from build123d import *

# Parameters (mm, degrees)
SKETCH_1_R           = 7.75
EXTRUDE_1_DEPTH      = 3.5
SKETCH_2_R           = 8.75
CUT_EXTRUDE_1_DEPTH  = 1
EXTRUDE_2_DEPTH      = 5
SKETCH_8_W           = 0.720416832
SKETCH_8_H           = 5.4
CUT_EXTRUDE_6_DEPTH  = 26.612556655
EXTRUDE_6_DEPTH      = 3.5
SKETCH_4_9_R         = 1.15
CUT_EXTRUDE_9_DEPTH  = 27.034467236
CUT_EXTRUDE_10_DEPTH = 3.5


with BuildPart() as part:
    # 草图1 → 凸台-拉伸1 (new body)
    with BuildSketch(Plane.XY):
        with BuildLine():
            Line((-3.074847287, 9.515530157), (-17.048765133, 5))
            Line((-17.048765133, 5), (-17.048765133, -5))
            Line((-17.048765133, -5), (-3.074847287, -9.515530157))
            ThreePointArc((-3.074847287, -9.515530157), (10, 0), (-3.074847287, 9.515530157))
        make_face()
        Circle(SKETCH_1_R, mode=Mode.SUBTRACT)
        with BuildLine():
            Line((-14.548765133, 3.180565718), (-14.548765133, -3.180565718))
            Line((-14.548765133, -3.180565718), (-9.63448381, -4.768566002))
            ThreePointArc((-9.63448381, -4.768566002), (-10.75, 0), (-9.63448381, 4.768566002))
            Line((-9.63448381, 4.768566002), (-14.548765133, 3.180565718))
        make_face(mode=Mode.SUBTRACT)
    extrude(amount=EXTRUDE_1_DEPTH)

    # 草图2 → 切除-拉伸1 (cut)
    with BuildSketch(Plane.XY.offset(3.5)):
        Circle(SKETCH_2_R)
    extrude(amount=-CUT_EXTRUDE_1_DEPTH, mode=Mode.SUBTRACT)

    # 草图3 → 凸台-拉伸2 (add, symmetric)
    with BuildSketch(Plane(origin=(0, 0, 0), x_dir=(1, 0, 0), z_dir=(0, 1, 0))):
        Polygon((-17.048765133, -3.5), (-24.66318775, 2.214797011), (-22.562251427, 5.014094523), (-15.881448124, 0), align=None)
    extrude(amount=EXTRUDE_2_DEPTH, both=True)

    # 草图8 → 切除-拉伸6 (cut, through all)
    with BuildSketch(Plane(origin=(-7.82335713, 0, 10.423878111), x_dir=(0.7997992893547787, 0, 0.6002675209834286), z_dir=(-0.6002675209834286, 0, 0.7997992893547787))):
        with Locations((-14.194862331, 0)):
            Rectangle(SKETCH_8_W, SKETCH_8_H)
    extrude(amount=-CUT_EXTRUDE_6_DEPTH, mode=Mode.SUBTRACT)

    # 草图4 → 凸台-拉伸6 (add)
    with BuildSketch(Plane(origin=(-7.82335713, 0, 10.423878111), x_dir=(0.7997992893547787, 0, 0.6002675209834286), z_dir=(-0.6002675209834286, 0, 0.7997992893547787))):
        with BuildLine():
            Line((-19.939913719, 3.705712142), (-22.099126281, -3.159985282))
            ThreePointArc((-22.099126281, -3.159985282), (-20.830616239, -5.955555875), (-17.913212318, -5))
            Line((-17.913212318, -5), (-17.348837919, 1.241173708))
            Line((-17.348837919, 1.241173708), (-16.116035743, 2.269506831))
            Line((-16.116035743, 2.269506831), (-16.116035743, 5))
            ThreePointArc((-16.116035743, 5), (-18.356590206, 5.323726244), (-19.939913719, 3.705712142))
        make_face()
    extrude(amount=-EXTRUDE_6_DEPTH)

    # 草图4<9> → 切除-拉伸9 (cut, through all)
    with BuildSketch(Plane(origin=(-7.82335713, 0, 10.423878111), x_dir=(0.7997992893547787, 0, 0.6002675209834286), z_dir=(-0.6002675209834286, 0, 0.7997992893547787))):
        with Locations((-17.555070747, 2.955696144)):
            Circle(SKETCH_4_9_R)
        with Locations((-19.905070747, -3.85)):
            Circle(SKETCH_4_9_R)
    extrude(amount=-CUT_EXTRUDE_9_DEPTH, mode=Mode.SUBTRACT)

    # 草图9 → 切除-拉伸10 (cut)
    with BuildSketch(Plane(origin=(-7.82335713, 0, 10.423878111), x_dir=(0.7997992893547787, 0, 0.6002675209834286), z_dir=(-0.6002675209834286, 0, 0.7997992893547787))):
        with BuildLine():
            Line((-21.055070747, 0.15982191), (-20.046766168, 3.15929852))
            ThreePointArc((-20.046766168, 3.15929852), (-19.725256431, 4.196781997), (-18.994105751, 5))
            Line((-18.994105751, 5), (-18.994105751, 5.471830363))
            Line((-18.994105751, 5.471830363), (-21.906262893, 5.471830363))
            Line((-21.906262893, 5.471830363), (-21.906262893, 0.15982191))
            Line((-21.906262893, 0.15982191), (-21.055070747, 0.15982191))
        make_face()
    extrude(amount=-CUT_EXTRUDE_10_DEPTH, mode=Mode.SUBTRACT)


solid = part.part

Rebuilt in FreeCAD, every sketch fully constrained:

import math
import FreeCAD as App
import Part
import Sketcher
from FreeCAD import Vector
Q = App.Units.Quantity


def add_polygon(sketch, points):
    """Adds a closed chain of lines whose ends are joined by coincident constraints."""
    first, n = sketch.GeometryCount, len(points)
    for a, b in zip(points, points[1:] + points[:1]):
        sketch.addGeometry(Part.LineSegment(App.Vector(*a, 0), App.Vector(*b, 0)), False)
    for i in range(n):
        sketch.addConstraint(Sketcher.Constraint("Coincident", first + i, 2, first + (i + 1) % n, 1))

doc = App.newDocument("Part")
params = doc.addObject("Spreadsheet::Sheet", "Params")
for row, (alias, value) in enumerate([
    ("sketch1_radius", "10 mm"),
    ("sketch1_diameter", "15.5 mm"),
    ("sketch1_height", "10 mm"),
    ("sketch1_radius2", "10.75 mm"),
    ("pad1_length", "3.5 mm"),
    ("sketch2_diameter", "17.5 mm"),
    ("pocket1_length", "1 mm"),
    ("sketch3_length", "3.5 mm"),
    ("pad2_length", "10 mm"),
    ("sketch4_height", "5.4 mm"),
    ("sketch5_radius", "2.3 mm"),
    ("sketch5_radius2", "2.5 mm"),
    ("pad3_length", "3.5 mm"),
    ("sketch6_diameter", "2.3 mm"),
    ("sketch7_radius", "2.5 mm"),
    ("pocket4_length", "3.5 mm"),
], start=1):
    params.set(f"A{row}", alias)
    params.set(f"B{row}", "=" + value)
    params.setAlias(f"B{row}", alias)

body = doc.addObject("PartDesign::Body", "Body")

sketch1 = body.newObject("Sketcher::SketchObject", "Sketch")
sketch1.AttachmentSupport = (doc.getObject("XY_Plane"), [""])
sketch1.MapMode = "FlatFace"
sketch1.addGeometry([
    Part.LineSegment(Vector(-3, 10, 0), Vector(-17, 5, 0)),
    Part.LineSegment(Vector(-17, 5, 0), Vector(-17, -5, 0)),
    Part.LineSegment(Vector(-17, -5, 0), Vector(-3, -10, 0)),
    Part.ArcOfCircle(Part.Circle(Vector(0, 0, 0), Vector(0, 0, 1), 10), math.radians(-108), math.radians(108)),
    Part.LineSegment(Vector(-15, -3, 0), Vector(-15, 3, 0)),
    Part.LineSegment(Vector(-15, 3, 0), Vector(-10, 5, 0)),
    Part.ArcOfCircle(Part.Circle(Vector(0, 0, 0), Vector(0, 0, 1), 11), math.radians(154), math.radians(206)),
    Part.LineSegment(Vector(-10, -5, 0), Vector(-15, -3, 0)),
    Part.Circle(Vector(0, 0, 0), Vector(0, 0, 1), 8),
], False)
sketch1.addConstraint([
    Sketcher.Constraint("Coincident", 0, 2, 1, 1),
    Sketcher.Constraint("Coincident", 1, 2, 2, 1),
    Sketcher.Constraint("Tangent", 2, 2, 3, 1),
    Sketcher.Constraint("Tangent", 3, 2, 0, 1),
    Sketcher.Constraint("Coincident", 4, 2, 5, 1),
    Sketcher.Constraint("Coincident", 5, 2, 6, 1),
    Sketcher.Constraint("Coincident", 6, 2, 7, 1),
    Sketcher.Constraint("Coincident", 7, 2, 4, 1),
    Sketcher.Constraint("Vertical", 1),
    Sketcher.Constraint("Vertical", 4),
    Sketcher.Constraint("Coincident", 3, 3, -1, 1),
    Sketcher.Constraint("Coincident", 6, 3, -1, 1),
    Sketcher.Constraint("Coincident", 8, 3, -1, 1),
    Sketcher.Constraint("Parallel", 0, 5),
    Sketcher.Constraint("Parallel", 2, 7),
    Sketcher.Constraint("Vertical", 2, 2, 3, 2),
    Sketcher.Constraint("Vertical", 5, 2, 6, 2),
    Sketcher.Constraint("Radius", 3, Q("10 mm")),
    Sketcher.Constraint("Diameter", 8, Q("15.5 mm")),
    Sketcher.Constraint("DistanceY", 1, 2, 1, 1, Q("10 mm")),
    Sketcher.Constraint("Radius", 6, Q("10.75 mm")),
    Sketcher.Constraint("DistanceX", 0, 2, 4, 2, Q("2.5 mm")),
    Sketcher.Constraint("DistanceY", 4, 2, 5, 2, Q("1.588 mm")),
    Sketcher.Constraint("DistanceY", 4, 1, 4, 2, Q("6.361131 mm")),
])
sketch1.setExpression("Constraints[17]", "Params.sketch1_radius")
sketch1.setExpression("Constraints[18]", "Params.sketch1_diameter")
sketch1.setExpression("Constraints[19]", "Params.sketch1_height")
sketch1.setExpression("Constraints[20]", "Params.sketch1_radius2")
pad1 = body.newObject("PartDesign::Pad", "Pad")
pad1.Profile = sketch1
pad1.setExpression("Length", "Params.pad1_length")

sketch2 = body.newObject("Sketcher::SketchObject", "Sketch001")
sketch2.AttachmentSupport = (doc.getObject("XY_Plane"), [""])
sketch2.MapMode = "FlatFace"
sketch2.AttachmentOffset = App.Placement(Vector(0, 0, 3.5), App.Rotation())
sketch2.addGeometry(Part.Circle(Vector(0, 0, 0), Vector(0, 0, 1), 9), False)
sketch2.addConstraint([
    Sketcher.Constraint("Coincident", 0, 3, -1, 1),
    Sketcher.Constraint("Diameter", 0, Q("17.5 mm")),
])
sketch2.setExpression("Constraints[1]", "Params.sketch2_diameter")
pocket1 = body.newObject("PartDesign::Pocket", "Pocket")
pocket1.Profile = sketch2
pocket1.setExpression("Length", "Params.pocket1_length")

sketch3 = body.newObject("Sketcher::SketchObject", "Sketch002")
sketch3.AttachmentSupport = (doc.getObject("XZ_Plane"), [""])
sketch3.MapMode = "FlatFace"
add_polygon(sketch3, [(-24.7, -2.2), (-17, 3.5), (-15.9, 0), (-22.6, -5)])
sketch3.addConstraint([
    Sketcher.Constraint("PointOnObject", 1, 2, -1),
    Sketcher.Constraint("Parallel", 0, 2),
    Sketcher.Constraint("Perpendicular", 2, 3),
    Sketcher.Constraint("Distance", 3, Q("3.5 mm")),
    Sketcher.Constraint("DistanceY", -1, 1, 0, 2, Q("3.5 mm")),
    Sketcher.Constraint("Distance", 2, Q("8.3531 mm")),
    Sketcher.Constraint("Distance", 1, Q("3.68953 mm")),
    Sketcher.Constraint("DistanceX", 1, 2, -1, 1, Q("15.881448 mm")),
])
sketch3.setExpression("Constraints[7]", "Params.sketch3_length")
pad2 = body.newObject("PartDesign::Pad", "Pad001")
pad2.Profile = sketch3
pad2.setExpression("Length", "Params.pad2_length")
pad2.Midplane = True

sketch4 = body.newObject("Sketcher::SketchObject", "Sketch003")
sketch4.Placement = App.Placement(Vector(-7.823357, 0, 10.423878), App.Rotation(Vector(0.799799289, 0, 0.600267521), Vector(0, 0.999999999, 0), Vector(-0.600267521, 0, 0.799799289), "ZXY"))
add_polygon(sketch4, [(-14.6, 2.7), (-14.6, -2.7), (-13.8, -2.7), (-13.8, 2.7)])
sketch4.addConstraint([
    Sketcher.Constraint("Vertical", 0),
    Sketcher.Constraint("Horizontal", 1),
    Sketcher.Constraint("Vertical", 2),
    Sketcher.Constraint("Horizontal", 3),
    Sketcher.Constraint("DistanceY", 0, 2, 0, 1, Q("5.4 mm")),
    Sketcher.Constraint("DistanceY", 0, 2, -1, 1, Q("2.7 mm")),
    Sketcher.Constraint("DistanceX", 1, 1, 1, 2, Q("0.720417 mm")),
    Sketcher.Constraint("DistanceX", 0, 2, -1, 1, Q("14.555071 mm")),
])
sketch4.setExpression("Constraints[8]", "Params.sketch4_height")
pocket2 = body.newObject("PartDesign::Pocket", "Pocket001")
pocket2.Profile = sketch4
pocket2.Type = "ThroughAll"

sketch5 = body.newObject("Sketcher::SketchObject", "Sketch004")
sketch5.Placement = App.Placement(Vector(-7.823357, 0, 10.423878), App.Rotation(Vector(0.799799289, 0, 0.600267521), Vector(0, 0.999999999, 0), Vector(-0.600267521, 0, 0.799799289), "ZXY"))
sketch5.addGeometry([
    Part.LineSegment(Vector(-19.9, 3.7, 0), Vector(-22.1, -3.2, 0)),
    Part.ArcOfCircle(Part.Circle(Vector(-19.9, -3.8, 0), Vector(0, 0, 1), 2.3), math.radians(163), math.radians(330)),
    Part.LineSegment(Vector(-17.9, -5, 0), Vector(-17.3, 1.2, 0)),
    Part.LineSegment(Vector(-17.3, 1.2, 0), Vector(-16.1, 2.3, 0)),
    Part.LineSegment(Vector(-16.1, 2.3, 0), Vector(-16.1, 5, 0)),
    Part.ArcOfCircle(Part.Circle(Vector(-17.6, 3, 0), Vector(0, 0, 1), 2.5), math.radians(55), math.radians(163)),
], False)
sketch5.addConstraint([
    Sketcher.Constraint("Tangent", 0, 2, 1, 1),
    Sketcher.Constraint("Coincident", 1, 2, 2, 1),
    Sketcher.Constraint("Coincident", 2, 2, 3, 1),
    Sketcher.Constraint("Coincident", 3, 2, 4, 1),
    Sketcher.Constraint("Coincident", 4, 2, 5, 1),
    Sketcher.Constraint("Tangent", 5, 2, 0, 1),
    Sketcher.Constraint("Vertical", 4),
    Sketcher.Constraint("Radius", 1, Q("2.3 mm")),
    Sketcher.Constraint("Radius", 5, Q("2.5 mm")),
    Sketcher.Constraint("DistanceY", 1, 2, -1, 1, Q("5 mm")),
    Sketcher.Constraint("DistanceY", -1, 1, 4, 2, Q("5 mm")),
    Sketcher.Constraint("DistanceY", 1, 3, -1, 1, Q("3.85 mm")),
    Sketcher.Constraint("DistanceX", 1, 3, 5, 3, Q("2.35 mm")),
    Sketcher.Constraint("Distance", 0, Q("7.197222 mm")),
    Sketcher.Constraint("Distance", 2, Q("6.266639 mm")),
    Sketcher.Constraint("DistanceY", 4, 1, 4, 2, Q("2.730493 mm")),
    Sketcher.Constraint("DistanceX", 1, 3, -1, 1, Q("19.905071 mm")),
    Sketcher.Constraint("DistanceX", 0, 2, 2, 2, Q("4.750288 mm")),
])
sketch5.setExpression("Constraints[7]", "Params.sketch5_radius")
sketch5.setExpression("Constraints[8]", "Params.sketch5_radius2")
pad3 = body.newObject("PartDesign::Pad", "Pad002")
pad3.Profile = sketch5
pad3.setExpression("Length", "Params.pad3_length")
pad3.Reversed = True

sketch6 = body.newObject("Sketcher::SketchObject", "Sketch005")
sketch6.Placement = App.Placement(Vector(-7.823357, 0, 10.423878), App.Rotation(Vector(0.799799289, 0, 0.600267521), Vector(0, 0.999999999, 0), Vector(-0.600267521, 0, 0.799799289), "ZXY"))
sketch6.addGeometry([
    Part.Circle(Vector(-17.6, 3, 0), Vector(0, 0, 1), 1.1),
    Part.Circle(Vector(-19.9, -3.8, 0), Vector(0, 0, 1), 1.1),
], False)
sketch6.addConstraint([
    Sketcher.Constraint("Equal", 0, 1),
    Sketcher.Constraint("Diameter", 0, Q("2.3 mm")),
    Sketcher.Constraint("DistanceY", 1, 3, -1, 1, Q("3.85 mm")),
    Sketcher.Constraint("DistanceX", 1, 3, 0, 3, Q("2.35 mm")),
    Sketcher.Constraint("DistanceX", 0, 3, -1, 1, Q("17.555071 mm")),
    Sketcher.Constraint("DistanceY", -1, 1, 0, 3, Q("2.955696 mm")),
])
sketch6.setExpression("Constraints[1]", "Params.sketch6_diameter")
pocket3 = body.newObject("PartDesign::Pocket", "Pocket002")
pocket3.Profile = sketch6
pocket3.Type = "ThroughAll"

sketch7 = body.newObject("Sketcher::SketchObject", "Sketch006")
sketch7.Placement = App.Placement(Vector(-7.823357, 0, 10.423878), App.Rotation(Vector(0.799799289, 0, 0.600267521), Vector(0, 0.999999999, 0), Vector(-0.600267521, 0, 0.799799289), "ZXY"))
sketch7.addGeometry([
    Part.LineSegment(Vector(-21.06, 0.16, 0), Vector(-20.05, 3.16, 0)),
    Part.ArcOfCircle(Part.Circle(Vector(-17.56, 2.96, 0), Vector(0, 0, 1), 2.5), math.radians(125), math.radians(175)),
    Part.LineSegment(Vector(-18.99, 5, 0), Vector(-18.99, 5.47, 0)),
    Part.LineSegment(Vector(-18.99, 5.47, 0), Vector(-21.91, 5.47, 0)),
    Part.LineSegment(Vector(-21.91, 5.47, 0), Vector(-21.91, 0.16, 0)),
    Part.LineSegment(Vector(-21.91, 0.16, 0), Vector(-21.06, 0.16, 0)),
], False)
sketch7.addConstraint([
    Sketcher.Constraint("Coincident", 0, 2, 1, 2),
    Sketcher.Constraint("Coincident", 1, 1, 2, 1),
    Sketcher.Constraint("Coincident", 2, 2, 3, 1),
    Sketcher.Constraint("Coincident", 3, 2, 4, 1),
    Sketcher.Constraint("Coincident", 4, 2, 5, 1),
    Sketcher.Constraint("Coincident", 5, 2, 0, 1),
    Sketcher.Constraint("Vertical", 2),
    Sketcher.Constraint("Horizontal", 3),
    Sketcher.Constraint("Vertical", 4),
    Sketcher.Constraint("Horizontal", 5),
    Sketcher.Constraint("Radius", 1, Q("2.5 mm")),
    Sketcher.Constraint("DistanceY", -1, 1, 1, 1, Q("5 mm")),
    Sketcher.Constraint("DistanceX", 5, 2, 1, 3, Q("3.5 mm")),
    Sketcher.Constraint("DistanceY", 2, 1, 2, 2, Q("0.47183 mm")),
    Sketcher.Constraint("DistanceY", 4, 2, 4, 1, Q("5.312008 mm")),
    Sketcher.Constraint("DistanceY", -1, 1, 0, 2, Q("3.159299 mm")),
    Sketcher.Constraint("DistanceX", 3, 2, 3, 1, Q("2.912157 mm")),
    Sketcher.Constraint("DistanceX", 5, 1, 5, 2, Q("0.851192 mm")),
    Sketcher.Constraint("DistanceX", 1, 3, -1, 1, Q("17.555071 mm")),
])
sketch7.setExpression("Constraints[10]", "Params.sketch7_radius")
pocket4 = body.newObject("PartDesign::Pocket", "Pocket003")
pocket4.Profile = sketch7
pocket4.setExpression("Length", "Params.pocket4_length")

doc.recompute()
